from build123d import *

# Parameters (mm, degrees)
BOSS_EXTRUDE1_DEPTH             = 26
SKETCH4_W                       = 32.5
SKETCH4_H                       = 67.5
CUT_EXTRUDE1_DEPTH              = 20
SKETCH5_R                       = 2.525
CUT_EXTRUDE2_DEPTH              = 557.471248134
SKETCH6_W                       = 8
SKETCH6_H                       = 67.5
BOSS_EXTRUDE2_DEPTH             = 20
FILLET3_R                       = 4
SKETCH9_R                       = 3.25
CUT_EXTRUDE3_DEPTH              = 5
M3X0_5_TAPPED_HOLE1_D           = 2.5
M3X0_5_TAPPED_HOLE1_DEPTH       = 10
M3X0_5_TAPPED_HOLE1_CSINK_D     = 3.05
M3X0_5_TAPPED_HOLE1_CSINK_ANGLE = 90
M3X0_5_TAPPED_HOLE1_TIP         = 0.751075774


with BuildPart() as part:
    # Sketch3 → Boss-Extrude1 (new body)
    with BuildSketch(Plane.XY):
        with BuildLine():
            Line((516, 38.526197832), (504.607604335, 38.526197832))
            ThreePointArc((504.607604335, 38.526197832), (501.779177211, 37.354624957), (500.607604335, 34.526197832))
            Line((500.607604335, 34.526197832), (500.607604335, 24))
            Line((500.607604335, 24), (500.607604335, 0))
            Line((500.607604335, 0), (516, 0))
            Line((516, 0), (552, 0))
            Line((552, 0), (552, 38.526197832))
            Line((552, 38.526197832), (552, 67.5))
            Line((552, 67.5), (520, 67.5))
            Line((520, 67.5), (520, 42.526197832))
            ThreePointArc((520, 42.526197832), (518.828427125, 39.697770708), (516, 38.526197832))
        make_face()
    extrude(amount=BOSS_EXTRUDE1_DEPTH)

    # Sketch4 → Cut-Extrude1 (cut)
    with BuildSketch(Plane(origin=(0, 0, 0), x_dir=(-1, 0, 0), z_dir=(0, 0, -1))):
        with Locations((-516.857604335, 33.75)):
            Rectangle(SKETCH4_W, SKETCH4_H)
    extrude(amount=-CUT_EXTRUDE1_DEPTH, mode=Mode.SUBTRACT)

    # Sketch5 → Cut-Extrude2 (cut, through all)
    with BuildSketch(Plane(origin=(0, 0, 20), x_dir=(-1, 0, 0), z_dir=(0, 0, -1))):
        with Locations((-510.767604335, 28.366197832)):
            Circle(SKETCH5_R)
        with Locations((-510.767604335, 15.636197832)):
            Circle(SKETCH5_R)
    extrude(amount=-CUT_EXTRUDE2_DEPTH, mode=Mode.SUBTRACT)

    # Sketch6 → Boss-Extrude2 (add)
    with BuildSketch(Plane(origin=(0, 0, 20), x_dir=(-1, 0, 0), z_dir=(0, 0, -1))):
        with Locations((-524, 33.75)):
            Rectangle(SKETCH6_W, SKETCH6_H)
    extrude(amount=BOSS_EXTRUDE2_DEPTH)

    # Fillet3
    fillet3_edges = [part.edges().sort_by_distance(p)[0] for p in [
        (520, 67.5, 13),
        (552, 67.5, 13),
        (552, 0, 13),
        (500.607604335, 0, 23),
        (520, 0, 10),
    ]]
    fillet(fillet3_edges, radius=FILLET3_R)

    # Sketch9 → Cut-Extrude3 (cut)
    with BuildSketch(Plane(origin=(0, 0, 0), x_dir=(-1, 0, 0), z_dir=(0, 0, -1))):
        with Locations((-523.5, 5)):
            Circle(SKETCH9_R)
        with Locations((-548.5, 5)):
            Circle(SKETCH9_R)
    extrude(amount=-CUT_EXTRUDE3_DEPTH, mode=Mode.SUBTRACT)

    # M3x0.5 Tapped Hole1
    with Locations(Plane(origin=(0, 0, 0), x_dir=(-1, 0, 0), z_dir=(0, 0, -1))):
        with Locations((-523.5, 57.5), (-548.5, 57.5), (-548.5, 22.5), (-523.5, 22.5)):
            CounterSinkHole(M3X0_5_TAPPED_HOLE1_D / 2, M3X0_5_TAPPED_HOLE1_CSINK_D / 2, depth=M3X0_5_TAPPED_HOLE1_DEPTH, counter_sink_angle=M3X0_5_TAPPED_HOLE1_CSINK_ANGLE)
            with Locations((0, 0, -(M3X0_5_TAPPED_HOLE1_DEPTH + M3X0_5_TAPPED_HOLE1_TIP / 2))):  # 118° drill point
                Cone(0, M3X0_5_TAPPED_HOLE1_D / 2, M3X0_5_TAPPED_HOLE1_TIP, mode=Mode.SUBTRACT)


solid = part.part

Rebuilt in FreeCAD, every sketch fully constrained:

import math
import FreeCAD as App
import Part
import Sketcher
from FreeCAD import Vector
Q = App.Units.Quantity


def edges_at(feature, points):
    """Names of the edges that pass closest to the given points."""
    edges = feature.Shape.Edges
    near = lambda p: min(range(len(edges)), key=lambda i: edges[i].distToShape(Part.Vertex(*p))[0])
    return sorted({f"Edge{near(p) + 1}" for p in points})

doc = App.newDocument("Part")
body = doc.addObject("PartDesign::Body", "Body")

# Sketch on XY plane
sketch1 = doc.addObject("Sketcher::SketchObject", "Sketch")
body.addObject(sketch1)
sketch1.AttachmentSupport = (doc.XY_Plane, [""])
sketch1.MapMode = "FlatFace"
sketch1.addGeometry(Part.LineSegment(Vector(516, 38.5, 0), Vector(504.6, 38.5, 0)), False)
sketch1.addGeometry(Part.ArcOfCircle(Part.Circle(Vector(504.6, 34.5, 0), Vector(0, 0, 1), 4), math.radians(90), math.radians(180)), False)
sketch1.addGeometry(Part.LineSegment(Vector(500.6, 34.5, 0), Vector(500.6, 0, 0)), False)
sketch1.addGeometry(Part.LineSegment(Vector(500.6, 0, 0), Vector(552, 0, 0)), False)
sketch1.addGeometry(Part.LineSegment(Vector(552, 0, 0), Vector(552, 67.5, 0)), False)
sketch1.addGeometry(Part.LineSegment(Vector(552, 67.5, 0), Vector(520, 67.5, 0)), False)
sketch1.addGeometry(Part.LineSegment(Vector(520, 67.5, 0), Vector(520, 42.5, 0)), False)
sketch1.addGeometry(Part.ArcOfCircle(Part.Circle(Vector(516, 42.5, 0), Vector(0, 0, 1), 4), math.radians(-90), math.radians(0)), False)
sketch1.addConstraint(Sketcher.Constraint("Tangent", 0, 2, 1, 1))
sketch1.addConstraint(Sketcher.Constraint("Tangent", 1, 2, 2, 1))
sketch1.addConstraint(Sketcher.Constraint("Coincident", 2, 2, 3, 1))
sketch1.addConstraint(Sketcher.Constraint("Coincident", 3, 2, 4, 1))
sketch1.addConstraint(Sketcher.Constraint("Coincident", 4, 2, 5, 1))
sketch1.addConstraint(Sketcher.Constraint("Coincident", 5, 2, 6, 1))
sketch1.addConstraint(Sketcher.Constraint("Tangent", 6, 2, 7, 2))
sketch1.addConstraint(Sketcher.Constraint("Tangent", 7, 1, 0, 1))
sketch1.addConstraint(Sketcher.Constraint("Horizontal", 0))
sketch1.addConstraint(Sketcher.Constraint("Vertical", 2))
sketch1.addConstraint(Sketcher.Constraint("Horizontal", 3))
sketch1.addConstraint(Sketcher.Constraint("Vertical", 4))
sketch1.addConstraint(Sketcher.Constraint("Horizontal", 5))
sketch1.addConstraint(Sketcher.Constraint("Vertical", 6))
sketch1.addConstraint(Sketcher.Constraint("Equal", 1, 7))
sketch1.addConstraint(Sketcher.Constraint("PointOnObject", 2, 2, -1))
sketch1.addConstraint(Sketcher.Constraint("Radius", 1, Q("4 mm")))
sketch1.addConstraint(Sketcher.Constraint("DistanceX", 5, 2, 5, 1, Q("32 mm")))
sketch1.addConstraint(Sketcher.Constraint("DistanceY", 4, 1, 4, 2, Q("67.5 mm")))
sketch1.addConstraint(Sketcher.Constraint("DistanceX", -1, 1, 7, 3, Q("516 mm")))
sketch1.addConstraint(Sketcher.Constraint("DistanceX", 0, 2, 0, 1, Q("11.392396 mm")))
sketch1.addConstraint(Sketcher.Constraint("DistanceY", 2, 2, 2, 1, Q("34.526198 mm")))
pad1 = doc.addObject("PartDesign::Pad", "Pad")
body.addObject(pad1)
pad1.Profile = sketch1
pad1.Length = 26

# Sketch on XY plane
sketch2 = doc.addObject("Sketcher::SketchObject", "Sketch001")
body.addObject(sketch2)
sketch2.AttachmentSupport = (doc.XY_Plane, [""])
sketch2.MapMode = "FlatFace"
sketch2.addGeometry(Part.LineSegment(Vector(533, 68, 0), Vector(533, 0, 0)), False)
sketch2.addGeometry(Part.LineSegment(Vector(533, 0, 0), Vector(501, 0, 0)), False)
sketch2.addGeometry(Part.LineSegment(Vector(501, 0, 0), Vector(501, 68, 0)), False)
sketch2.addGeometry(Part.LineSegment(Vector(501, 68, 0), Vector(533, 68, 0)), False)
sketch2.addConstraint(Sketcher.Constraint("Coincident", 0, 2, 1, 1))
sketch2.addConstraint(Sketcher.Constraint("Coincident", 1, 2, 2, 1))
sketch2.addConstraint(Sketcher.Constraint("Coincident", 2, 2, 3, 1))
sketch2.addConstraint(Sketcher.Constraint("Coincident", 3, 2, 0, 1))
sketch2.addConstraint(Sketcher.Constraint("Vertical", 0))
sketch2.addConstraint(Sketcher.Constraint("Horizontal", 1))
sketch2.addConstraint(Sketcher.Constraint("Vertical", 2))
sketch2.addConstraint(Sketcher.Constraint("Horizontal", 3))
sketch2.addConstraint(Sketcher.Constraint("PointOnObject", 0, 2, -1))
sketch2.addConstraint(Sketcher.Constraint("DistanceX", 1, 2, 1, 1, Q("32.5 mm")))
sketch2.addConstraint(Sketcher.Constraint("DistanceY", 0, 2, 0, 1, Q("67.5 mm")))
sketch2.addConstraint(Sketcher.Constraint("DistanceX", -1, 1, 0, 2, Q("533.107604 mm")))
pocket1 = doc.addObject("PartDesign::Pocket", "Pocket")
body.addObject(pocket1)
pocket1.Profile = sketch2
pocket1.Length = 20
pocket1.Reversed = True

# Sketch on XY plane
sketch3 = doc.addObject("Sketcher::SketchObject", "Sketch002")
body.addObject(sketch3)
sketch3.AttachmentSupport = (doc.XY_Plane, [""])
sketch3.MapMode = "FlatFace"
sketch3.AttachmentOffset = App.Placement(Vector(0, 0, 20), App.Rotation())
sketch3.addGeometry(Part.Circle(Vector(510.8, 28.4, 0), Vector(0, 0, 1), 2.5), False)
sketch3.addGeometry(Part.Circle(Vector(510.8, 15.6, 0), Vector(0, 0, 1), 2.5), False)
sketch3.addConstraint(Sketcher.Constraint("Equal", 0, 1))
sketch3.addConstraint(Sketcher.Constraint("Vertical", 0, 3, 1, 3))
sketch3.addConstraint(Sketcher.Constraint("Diameter", 0, Q("5.05 mm")))
sketch3.addConstraint(Sketcher.Constraint("DistanceY", 1, 3, 0, 3, Q("12.73 mm")))
sketch3.addConstraint(Sketcher.Constraint("DistanceX", -1, 1, 0, 3, Q("510.767604 mm")))
sketch3.addConstraint(Sketcher.Constraint("DistanceY", -1, 1, 0, 3, Q("28.366198 mm")))
pocket2 = doc.addObject("PartDesign::Pocket", "Pocket001")
body.addObject(pocket2)
pocket2.Profile = sketch3
pocket2.Type = "ThroughAll"
pocket2.Reversed = True

# Sketch on XY plane
sketch4 = doc.addObject("Sketcher::SketchObject", "Sketch003")
body.addObject(sketch4)
sketch4.AttachmentSupport = (doc.XY_Plane, [""])
sketch4.MapMode = "FlatFace"
sketch4.AttachmentOffset = App.Placement(Vector(0, 0, 20), App.Rotation())
sketch4.addGeometry(Part.LineSegment(Vector(528, 68, 0), Vector(528, 0, 0)), False)
sketch4.addGeometry(Part.LineSegment(Vector(528, 0, 0), Vector(520, 0, 0)), False)
sketch4.addGeometry(Part.LineSegment(Vector(520, 0, 0), Vector(520, 68, 0)), False)
sketch4.addGeometry(Part.LineSegment(Vector(520, 68, 0), Vector(528, 68, 0)), False)
sketch4.addConstraint(Sketcher.Constraint("Coincident", 0, 2, 1, 1))
sketch4.addConstraint(Sketcher.Constraint("Coincident", 1, 2, 2, 1))
sketch4.addConstraint(Sketcher.Constraint("Coincident", 2, 2, 3, 1))
sketch4.addConstraint(Sketcher.Constraint("Coincident", 3, 2, 0, 1))
sketch4.addConstraint(Sketcher.Constraint("Vertical", 0))
sketch4.addConstraint(Sketcher.Constraint("Horizontal", 1))
sketch4.addConstraint(Sketcher.Constraint("Vertical", 2))
sketch4.addConstraint(Sketcher.Constraint("Horizontal", 3))
sketch4.addConstraint(Sketcher.Constraint("PointOnObject", 0, 2, -1))
sketch4.addConstraint(Sketcher.Constraint("DistanceX", 1, 2, 1, 1, Q("8 mm")))
sketch4.addConstraint(Sketcher.Constraint("DistanceY", 0, 2, 0, 1, Q("67.5 mm")))
sketch4.addConstraint(Sketcher.Constraint("DistanceX", -1, 1, 0, 2, Q("528 mm")))
pad2 = doc.addObject("PartDesign::Pad", "Pad001")
body.addObject(pad2)
pad2.Profile = sketch4
pad2.Length = 20
pad2.Reversed = True
doc.recompute()

fillet = doc.addObject("PartDesign::Fillet", "Fillet")
body.addObject(fillet)
fillet.Base = (pad2, edges_at(pad2, [
    (520, 67.5, 13),
    (552, 67.5, 13),
    (552, 0, 13),
    (500.608, 0, 23),
    (520, 0, 10),
]))
fillet.Radius = 4

# Sketch on XY plane
sketch5 = doc.addObject("Sketcher::SketchObject", "Sketch004")
body.addObject(sketch5)
sketch5.AttachmentSupport = (doc.XY_Plane, [""])
sketch5.MapMode = "FlatFace"
sketch5.addGeometry(Part.Circle(Vector(523.5, 5, 0), Vector(0, 0, 1), 3.2), False)
sketch5.addGeometry(Part.Circle(Vector(548.5, 5, 0), Vector(0, 0, 1), 3.2), False)
sketch5.addConstraint(Sketcher.Constraint("Equal", 0, 1))
sketch5.addConstraint(Sketcher.Constraint("Horizontal", 0, 3, 1, 3))
sketch5.addConstraint(Sketcher.Constraint("Diameter", 0, Q("6.5 mm")))
sketch5.addConstraint(Sketcher.Constraint("DistanceY", -1, 1, 0, 3, Q("5 mm")))
sketch5.addConstraint(Sketcher.Constraint("DistanceX", 0, 3, 1, 3, Q("25 mm")))
sketch5.addConstraint(Sketcher.Constraint("DistanceX", -1, 1, 0, 3, Q("523.5 mm")))
pocket3 = doc.addObject("PartDesign::Pocket", "Pocket002")
body.addObject(pocket3)
pocket3.Profile = sketch5
pocket3.Length = 5
pocket3.Reversed = True

# Sketch on XY plane
sketch6 = doc.addObject("Sketcher::SketchObject", "Sketch005")
body.addObject(sketch6)
sketch6.AttachmentSupport = (doc.XY_Plane, [""])
sketch6.MapMode = "FlatFace"
sketch6.addGeometry(Part.Circle(Vector(523.5, 57.5, 0), Vector(0, 0, 1), 1.2), False)
sketch6.addGeometry(Part.Circle(Vector(548.5, 57.5, 0), Vector(0, 0, 1), 1.2), False)
sketch6.addGeometry(Part.Circle(Vector(548.5, 22.5, 0), Vector(0, 0, 1), 1.2), False)
sketch6.addGeometry(Part.Circle(Vector(523.5, 22.5, 0), Vector(0, 0, 1), 1.2), False)
sketch6.addConstraint(Sketcher.Constraint("Equal", 0, 1))
sketch6.addConstraint(Sketcher.Constraint("Equal", 1, 2))
sketch6.addConstraint(Sketcher.Constraint("Equal", 2, 3))
sketch6.addConstraint(Sketcher.Constraint("Horizontal", 0, 3, 1, 3))
sketch6.addConstraint(Sketcher.Constraint("Horizontal", 2, 3, 3, 3))
sketch6.addConstraint(Sketcher.Constraint("Vertical", 1, 3, 2, 3))
sketch6.addConstraint(Sketcher.Constraint("Vertical", 0, 3, 3, 3))
sketch6.addConstraint(Sketcher.Constraint("Diameter", 0, Q("2.5 mm")))
sketch6.addConstraint(Sketcher.Constraint("DistanceX", 0, 3, 1, 3, Q("25 mm")))
sketch6.addConstraint(Sketcher.Constraint("DistanceY", 2, 3, 1, 3, Q("35 mm")))
sketch6.addConstraint(Sketcher.Constraint("DistanceX", -1, 1, 0, 3, Q("523.5 mm")))
sketch6.addConstraint(Sketcher.Constraint("DistanceY", -1, 1, 0, 3, Q("57.5 mm")))
doc.recompute()
hole = doc.addObject("PartDesign::Hole", "Hole")
body.addObject(hole)
hole.Profile = sketch6
hole.ThreadType = "None"
hole.Diameter = 2.5
hole.DepthType = "Dimension"
hole.Depth = 10
hole.DrillPoint = "Angled"
hole.DrillPointAngle = 118
hole.HoleCutType = "Countersink"
hole.HoleCutDiameter = 3.05
hole.HoleCutCountersinkAngle = 90
hole.Reversed = True

doc.recompute()
